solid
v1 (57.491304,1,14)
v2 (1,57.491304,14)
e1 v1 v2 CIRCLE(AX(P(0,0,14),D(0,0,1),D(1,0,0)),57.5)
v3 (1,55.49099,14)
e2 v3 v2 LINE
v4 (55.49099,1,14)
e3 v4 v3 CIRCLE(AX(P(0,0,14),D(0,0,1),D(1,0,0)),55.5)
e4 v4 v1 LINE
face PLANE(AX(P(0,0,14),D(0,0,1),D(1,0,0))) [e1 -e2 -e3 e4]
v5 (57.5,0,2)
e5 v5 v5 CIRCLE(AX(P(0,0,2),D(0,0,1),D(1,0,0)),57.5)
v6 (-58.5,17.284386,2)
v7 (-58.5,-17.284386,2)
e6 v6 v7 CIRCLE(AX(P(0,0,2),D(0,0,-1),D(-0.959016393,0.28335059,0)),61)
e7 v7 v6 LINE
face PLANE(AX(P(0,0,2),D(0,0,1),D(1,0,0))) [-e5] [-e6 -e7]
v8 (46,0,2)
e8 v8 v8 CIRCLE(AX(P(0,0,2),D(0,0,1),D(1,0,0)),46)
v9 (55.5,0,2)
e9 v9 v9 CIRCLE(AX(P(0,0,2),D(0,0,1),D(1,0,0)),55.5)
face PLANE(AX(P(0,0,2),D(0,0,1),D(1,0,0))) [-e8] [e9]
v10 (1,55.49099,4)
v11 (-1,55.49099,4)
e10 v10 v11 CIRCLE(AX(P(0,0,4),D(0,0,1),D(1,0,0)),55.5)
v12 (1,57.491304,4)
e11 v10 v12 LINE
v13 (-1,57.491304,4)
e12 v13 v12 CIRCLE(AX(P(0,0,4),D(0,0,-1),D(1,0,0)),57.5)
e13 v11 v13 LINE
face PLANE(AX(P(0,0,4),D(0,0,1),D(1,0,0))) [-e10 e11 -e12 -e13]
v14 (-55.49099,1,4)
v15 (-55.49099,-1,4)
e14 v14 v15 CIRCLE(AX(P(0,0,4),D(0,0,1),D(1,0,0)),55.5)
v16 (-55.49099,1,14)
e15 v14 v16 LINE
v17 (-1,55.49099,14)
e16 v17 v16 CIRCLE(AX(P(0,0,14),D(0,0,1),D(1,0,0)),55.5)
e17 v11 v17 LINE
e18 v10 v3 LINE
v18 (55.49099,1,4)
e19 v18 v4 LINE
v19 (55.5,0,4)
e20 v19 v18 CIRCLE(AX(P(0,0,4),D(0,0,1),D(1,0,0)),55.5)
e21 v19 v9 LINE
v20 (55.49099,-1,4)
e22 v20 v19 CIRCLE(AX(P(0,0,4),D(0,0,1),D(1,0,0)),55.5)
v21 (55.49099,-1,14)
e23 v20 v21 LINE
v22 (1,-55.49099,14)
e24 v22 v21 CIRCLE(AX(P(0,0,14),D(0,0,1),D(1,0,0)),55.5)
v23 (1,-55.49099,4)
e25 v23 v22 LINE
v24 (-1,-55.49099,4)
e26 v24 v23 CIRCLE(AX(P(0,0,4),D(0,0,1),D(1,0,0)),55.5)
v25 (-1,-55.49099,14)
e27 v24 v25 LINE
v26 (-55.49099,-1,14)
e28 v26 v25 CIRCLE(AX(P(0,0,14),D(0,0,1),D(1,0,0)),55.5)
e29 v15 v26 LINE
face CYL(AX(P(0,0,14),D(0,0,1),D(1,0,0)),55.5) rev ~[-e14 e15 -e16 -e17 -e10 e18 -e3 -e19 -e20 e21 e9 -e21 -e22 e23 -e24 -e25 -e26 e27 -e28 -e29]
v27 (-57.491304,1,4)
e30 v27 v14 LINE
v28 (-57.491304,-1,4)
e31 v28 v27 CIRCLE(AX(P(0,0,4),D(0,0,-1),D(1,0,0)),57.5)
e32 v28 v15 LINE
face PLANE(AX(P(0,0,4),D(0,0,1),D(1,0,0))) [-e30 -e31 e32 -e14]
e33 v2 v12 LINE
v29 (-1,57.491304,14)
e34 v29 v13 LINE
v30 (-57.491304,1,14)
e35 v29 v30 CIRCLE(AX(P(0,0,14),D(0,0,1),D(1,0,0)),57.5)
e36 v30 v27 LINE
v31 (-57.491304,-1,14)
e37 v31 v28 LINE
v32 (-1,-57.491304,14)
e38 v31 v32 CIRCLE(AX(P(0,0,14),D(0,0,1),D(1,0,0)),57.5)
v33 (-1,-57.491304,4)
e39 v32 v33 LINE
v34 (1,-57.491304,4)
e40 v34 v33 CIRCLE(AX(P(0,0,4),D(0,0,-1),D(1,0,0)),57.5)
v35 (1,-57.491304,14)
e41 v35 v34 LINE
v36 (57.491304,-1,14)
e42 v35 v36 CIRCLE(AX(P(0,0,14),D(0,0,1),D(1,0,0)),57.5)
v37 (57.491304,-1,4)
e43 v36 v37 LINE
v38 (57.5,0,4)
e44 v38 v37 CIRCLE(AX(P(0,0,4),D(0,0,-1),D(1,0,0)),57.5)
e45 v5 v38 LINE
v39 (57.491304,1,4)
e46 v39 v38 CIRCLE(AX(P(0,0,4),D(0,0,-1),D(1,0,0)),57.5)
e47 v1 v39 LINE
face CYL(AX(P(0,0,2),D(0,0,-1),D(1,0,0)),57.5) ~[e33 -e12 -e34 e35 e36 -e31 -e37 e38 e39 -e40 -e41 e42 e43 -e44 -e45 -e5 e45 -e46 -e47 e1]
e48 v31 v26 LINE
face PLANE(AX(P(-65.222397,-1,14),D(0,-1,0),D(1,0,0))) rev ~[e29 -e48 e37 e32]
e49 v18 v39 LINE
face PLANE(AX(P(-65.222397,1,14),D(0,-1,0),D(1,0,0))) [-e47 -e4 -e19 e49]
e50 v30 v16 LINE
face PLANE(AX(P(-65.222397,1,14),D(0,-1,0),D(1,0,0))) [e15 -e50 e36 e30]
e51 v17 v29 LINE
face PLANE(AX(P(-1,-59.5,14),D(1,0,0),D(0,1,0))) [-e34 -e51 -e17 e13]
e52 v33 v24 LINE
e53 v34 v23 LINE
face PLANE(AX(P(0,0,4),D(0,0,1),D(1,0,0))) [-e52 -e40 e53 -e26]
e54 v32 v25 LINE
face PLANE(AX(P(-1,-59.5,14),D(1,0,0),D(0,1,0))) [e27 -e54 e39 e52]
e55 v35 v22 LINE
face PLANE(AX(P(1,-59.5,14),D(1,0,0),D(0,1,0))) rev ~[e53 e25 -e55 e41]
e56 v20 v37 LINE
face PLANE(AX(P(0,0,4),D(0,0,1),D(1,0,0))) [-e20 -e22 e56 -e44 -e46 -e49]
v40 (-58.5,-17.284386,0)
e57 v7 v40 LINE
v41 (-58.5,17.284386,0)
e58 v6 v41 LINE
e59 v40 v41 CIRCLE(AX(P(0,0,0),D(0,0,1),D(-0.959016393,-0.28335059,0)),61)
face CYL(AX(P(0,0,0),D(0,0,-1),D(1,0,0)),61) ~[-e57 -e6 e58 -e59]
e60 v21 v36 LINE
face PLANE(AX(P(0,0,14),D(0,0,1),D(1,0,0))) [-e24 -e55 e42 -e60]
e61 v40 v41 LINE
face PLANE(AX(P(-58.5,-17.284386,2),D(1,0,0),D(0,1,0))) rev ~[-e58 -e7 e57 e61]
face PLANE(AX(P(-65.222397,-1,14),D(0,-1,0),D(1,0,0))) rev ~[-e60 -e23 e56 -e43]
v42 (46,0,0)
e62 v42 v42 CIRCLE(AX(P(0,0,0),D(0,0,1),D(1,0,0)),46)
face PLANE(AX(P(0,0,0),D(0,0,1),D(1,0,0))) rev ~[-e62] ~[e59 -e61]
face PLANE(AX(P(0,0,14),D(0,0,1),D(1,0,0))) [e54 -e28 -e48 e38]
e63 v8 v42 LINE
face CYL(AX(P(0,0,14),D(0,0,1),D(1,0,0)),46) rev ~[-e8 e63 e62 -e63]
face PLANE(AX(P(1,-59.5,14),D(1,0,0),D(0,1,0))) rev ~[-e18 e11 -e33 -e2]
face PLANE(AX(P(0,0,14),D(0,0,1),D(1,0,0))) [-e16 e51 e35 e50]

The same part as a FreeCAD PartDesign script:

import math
import FreeCAD as App
import Part
import Sketcher
Q = App.Units.Quantity

doc = App.newDocument("Part")
body = doc.addObject("PartDesign::Body", "Body")

# Sketch on XY plane
sketch1 = doc.addObject("Sketcher::SketchObject", "Sketch")
body.addObject(sketch1)
sketch1.AttachmentSupport = (doc.XY_Plane, [""])
sketch1.MapMode = "FlatFace"
sketch1.addGeometry(Part.Circle(App.Vector(0, 0, 0), App.Vector(0, 0, 1), 61), False)
sketch1.addConstraint([
    Sketcher.Constraint("Coincident", 0, 3, -1, 1),
    Sketcher.Constraint("Diameter", 0, Q("122 mm")),
])
pad1 = doc.addObject("PartDesign::Pad", "Pad")
body.addObject(pad1)
pad1.Profile = sketch1
pad1.Length = 2

# Sketch on XY plane
sketch2 = doc.addObject("Sketcher::SketchObject", "Sketch001")
body.addObject(sketch2)
sketch2.AttachmentSupport = (doc.XY_Plane, [""])
sketch2.MapMode = "FlatFace"
sketch2.AttachmentOffset = App.Placement(App.Vector(0, 0, 2), App.Rotation())
sketch2.addGeometry(Part.Circle(App.Vector(0, 0, 0), App.Vector(0, 0, 1), 57.5), False)
sketch2.addConstraint([
    Sketcher.Constraint("Coincident", 0, 3, -1, 1),
    Sketcher.Constraint("Diameter", 0, Q("115 mm")),
])
pad2 = doc.addObject("PartDesign::Pad", "Pad001")
body.addObject(pad2)
pad2.Profile = sketch2
pad2.Length = 12

# Sketch on XY plane
sketch3 = doc.addObject("Sketcher::SketchObject", "Sketch002")
body.addObject(sketch3)
sketch3.AttachmentSupport = (doc.XY_Plane, [""])
sketch3.MapMode = "FlatFace"
sketch3.AttachmentOffset = App.Placement(App.Vector(0, 0, 14), App.Rotation())
sketch3.addGeometry(Part.Circle(App.Vector(0, 0, 0), App.Vector(0, 0, 1), 46), False)
sketch3.addConstraint([
    Sketcher.Constraint("Coincident", 0, 3, -1, 1),
    Sketcher.Constraint("Diameter", 0, Q("92 mm")),
])
pocket1 = doc.addObject("PartDesign::Pocket", "Pocket")
body.addObject(pocket1)
pocket1.Profile = sketch3
pocket1.Length = 112.4

# Sketch on XY plane
sketch4 = doc.addObject("Sketcher::SketchObject", "Sketch003")
body.addObject(sketch4)
sketch4.AttachmentSupport = (doc.XY_Plane, [""])
sketch4.MapMode = "FlatFace"
sketch4.AttachmentOffset = App.Placement(App.Vector(0, 0, 14), App.Rotation())
sketch4.addGeometry([
    Part.Circle(App.Vector(0, 0, 0), App.Vector(0, 0, 1), 55.5),
    Part.Circle(App.Vector(0, 0, 0), App.Vector(0, 0, 1), 46),
], False)
sketch4.addConstraint([
    Sketcher.Constraint("Coincident", 0, 3, -1, 1),
    Sketcher.Constraint("Coincident", 1, 3, -1, 1),
    Sketcher.Constraint("Diameter", 0, Q("111 mm")),
    Sketcher.Constraint("Diameter", 1, Q("92 mm")),
])
pocket2 = doc.addObject("PartDesign::Pocket", "Pocket001")
body.addObject(pocket2)
pocket2.Profile = sketch4
pocket2.Length = 12

# Sketch on XY plane
sketch5 = doc.addObject("Sketcher::SketchObject", "Sketch004")
body.addObject(sketch5)
sketch5.AttachmentSupport = (doc.XY_Plane, [""])
sketch5.MapMode = "FlatFace"
sketch5.AttachmentOffset = App.Placement(App.Vector(0, 0, 2), App.Rotation())
sketch5.addGeometry([
    Part.LineSegment(App.Vector(-58.5, -17.284386, 0), App.Vector(-58.5, 17.284386, 0)),
    Part.ArcOfCircle(Part.Circle(App.Vector(0, 0, 0), App.Vector(0, 0, 1), 61), math.radians(163.539719), math.radians(196.460281)),
], False)
sketch5.addConstraint([
    Sketcher.Constraint("Coincident", 0, 1, 1, 2),
    Sketcher.Constraint("Coincident", 1, 1, 0, 2),
    Sketcher.Constraint("Vertical", 0),
    Sketcher.Constraint("Coincident", 1, 3, -1, 1),
    Sketcher.Constraint("Radius", 1, Q("61 mm")),
    Sketcher.Constraint("DistanceX", 0, 1, -1, 1, Q("58.5 mm")),
])
pocket3 = doc.addObject("PartDesign::Pocket", "Pocket002")
body.addObject(pocket3)
pocket3.Profile = sketch5
pocket3.Length = 25

# Sketch on XY plane
sketch6 = doc.addObject("Sketcher::SketchObject", "Sketch005")
body.addObject(sketch6)
sketch6.AttachmentSupport = (doc.XY_Plane, [""])
sketch6.MapMode = "FlatFace"
sketch6.AttachmentOffset = App.Placement(App.Vector(0, 0, 14), App.Rotation())
sketch6.addGeometry([
    Part.LineSegment(App.Vector(-65.222397, 1, 0), App.Vector(-65.222397, -1, 0)),
    Part.LineSegment(App.Vector(-65.222397, -1, 0), App.Vector(65.222397, -1, 0)),
    Part.LineSegment(App.Vector(65.222397, -1, 0), App.Vector(65.222397, 1, 0)),
    Part.LineSegment(App.Vector(65.222397, 1, 0), App.Vector(-65.222397, 1, 0)),
], False)
sketch6.addConstraint([
    Sketcher.Constraint("Coincident", 0, 2, 1, 1),
    Sketcher.Constraint("Coincident", 1, 2, 2, 1),
    Sketcher.Constraint("Coincident", 2, 2, 3, 1),
    Sketcher.Constraint("Coincident", 3, 2, 0, 1),
    Sketcher.Constraint("Vertical", 0),
    Sketcher.Constraint("Horizontal", 1),
    Sketcher.Constraint("Vertical", 2),
    Sketcher.Constraint("Horizontal", 3),
    Sketcher.Constraint("Symmetric", 0, 2, 2, 2, -1, 1),
    Sketcher.Constraint("DistanceY", 0, 2, 0, 1, Q("2 mm")),
    Sketcher.Constraint("DistanceX", 1, 1, 1, 2, Q("130.444795 mm")),
])
pocket4 = doc.addObject("PartDesign::Pocket", "Pocket003")
body.addObject(pocket4)
pocket4.Profile = sketch6
pocket4.Length = 10

# Sketch on XY plane
sketch7 = doc.addObject("Sketcher::SketchObject", "Sketch006")
body.addObject(sketch7)
sketch7.AttachmentSupport = (doc.XY_Plane, [""])
sketch7.MapMode = "FlatFace"
sketch7.AttachmentOffset = App.Placement(App.Vector(0, 0, 14), App.Rotation())
sketch7.addGeometry([
    Part.LineSegment(App.Vector(-1, 59.5, 0), App.Vector(-1, -59.5, 0)),
    Part.LineSegment(App.Vector(-1, -59.5, 0), App.Vector(1, -59.5, 0)),
    Part.LineSegment(App.Vector(1, -59.5, 0), App.Vector(1, 59.5, 0)),
    Part.LineSegment(App.Vector(1, 59.5, 0), App.Vector(-1, 59.5, 0)),
], False)
sketch7.addConstraint([
    Sketcher.Constraint("Coincident", 0, 2, 1, 1),
    Sketcher.Constraint("Coincident", 1, 2, 2, 1),
    Sketcher.Constraint("Coincident", 2, 2, 3, 1),
    Sketcher.Constraint("Coincident", 3, 2, 0, 1),
    Sketcher.Constraint("Vertical", 0),
    Sketcher.Constraint("Horizontal", 1),
    Sketcher.Constraint("Vertical", 2),
    Sketcher.Constraint("Horizontal", 3),
    Sketcher.Constraint("Symmetric", 0, 2, 2, 2, -1, 1),
    Sketcher.Constraint("DistanceX", 1, 1, 1, 2, Q("2 mm")),
    Sketcher.Constraint("DistanceY", 0, 2, 0, 1, Q("119 mm")),
])
pocket5 = doc.addObject("PartDesign::Pocket", "Pocket004")
body.addObject(pocket5)
pocket5.Profile = sketch7
pocket5.Length = 10

doc.recompute()
